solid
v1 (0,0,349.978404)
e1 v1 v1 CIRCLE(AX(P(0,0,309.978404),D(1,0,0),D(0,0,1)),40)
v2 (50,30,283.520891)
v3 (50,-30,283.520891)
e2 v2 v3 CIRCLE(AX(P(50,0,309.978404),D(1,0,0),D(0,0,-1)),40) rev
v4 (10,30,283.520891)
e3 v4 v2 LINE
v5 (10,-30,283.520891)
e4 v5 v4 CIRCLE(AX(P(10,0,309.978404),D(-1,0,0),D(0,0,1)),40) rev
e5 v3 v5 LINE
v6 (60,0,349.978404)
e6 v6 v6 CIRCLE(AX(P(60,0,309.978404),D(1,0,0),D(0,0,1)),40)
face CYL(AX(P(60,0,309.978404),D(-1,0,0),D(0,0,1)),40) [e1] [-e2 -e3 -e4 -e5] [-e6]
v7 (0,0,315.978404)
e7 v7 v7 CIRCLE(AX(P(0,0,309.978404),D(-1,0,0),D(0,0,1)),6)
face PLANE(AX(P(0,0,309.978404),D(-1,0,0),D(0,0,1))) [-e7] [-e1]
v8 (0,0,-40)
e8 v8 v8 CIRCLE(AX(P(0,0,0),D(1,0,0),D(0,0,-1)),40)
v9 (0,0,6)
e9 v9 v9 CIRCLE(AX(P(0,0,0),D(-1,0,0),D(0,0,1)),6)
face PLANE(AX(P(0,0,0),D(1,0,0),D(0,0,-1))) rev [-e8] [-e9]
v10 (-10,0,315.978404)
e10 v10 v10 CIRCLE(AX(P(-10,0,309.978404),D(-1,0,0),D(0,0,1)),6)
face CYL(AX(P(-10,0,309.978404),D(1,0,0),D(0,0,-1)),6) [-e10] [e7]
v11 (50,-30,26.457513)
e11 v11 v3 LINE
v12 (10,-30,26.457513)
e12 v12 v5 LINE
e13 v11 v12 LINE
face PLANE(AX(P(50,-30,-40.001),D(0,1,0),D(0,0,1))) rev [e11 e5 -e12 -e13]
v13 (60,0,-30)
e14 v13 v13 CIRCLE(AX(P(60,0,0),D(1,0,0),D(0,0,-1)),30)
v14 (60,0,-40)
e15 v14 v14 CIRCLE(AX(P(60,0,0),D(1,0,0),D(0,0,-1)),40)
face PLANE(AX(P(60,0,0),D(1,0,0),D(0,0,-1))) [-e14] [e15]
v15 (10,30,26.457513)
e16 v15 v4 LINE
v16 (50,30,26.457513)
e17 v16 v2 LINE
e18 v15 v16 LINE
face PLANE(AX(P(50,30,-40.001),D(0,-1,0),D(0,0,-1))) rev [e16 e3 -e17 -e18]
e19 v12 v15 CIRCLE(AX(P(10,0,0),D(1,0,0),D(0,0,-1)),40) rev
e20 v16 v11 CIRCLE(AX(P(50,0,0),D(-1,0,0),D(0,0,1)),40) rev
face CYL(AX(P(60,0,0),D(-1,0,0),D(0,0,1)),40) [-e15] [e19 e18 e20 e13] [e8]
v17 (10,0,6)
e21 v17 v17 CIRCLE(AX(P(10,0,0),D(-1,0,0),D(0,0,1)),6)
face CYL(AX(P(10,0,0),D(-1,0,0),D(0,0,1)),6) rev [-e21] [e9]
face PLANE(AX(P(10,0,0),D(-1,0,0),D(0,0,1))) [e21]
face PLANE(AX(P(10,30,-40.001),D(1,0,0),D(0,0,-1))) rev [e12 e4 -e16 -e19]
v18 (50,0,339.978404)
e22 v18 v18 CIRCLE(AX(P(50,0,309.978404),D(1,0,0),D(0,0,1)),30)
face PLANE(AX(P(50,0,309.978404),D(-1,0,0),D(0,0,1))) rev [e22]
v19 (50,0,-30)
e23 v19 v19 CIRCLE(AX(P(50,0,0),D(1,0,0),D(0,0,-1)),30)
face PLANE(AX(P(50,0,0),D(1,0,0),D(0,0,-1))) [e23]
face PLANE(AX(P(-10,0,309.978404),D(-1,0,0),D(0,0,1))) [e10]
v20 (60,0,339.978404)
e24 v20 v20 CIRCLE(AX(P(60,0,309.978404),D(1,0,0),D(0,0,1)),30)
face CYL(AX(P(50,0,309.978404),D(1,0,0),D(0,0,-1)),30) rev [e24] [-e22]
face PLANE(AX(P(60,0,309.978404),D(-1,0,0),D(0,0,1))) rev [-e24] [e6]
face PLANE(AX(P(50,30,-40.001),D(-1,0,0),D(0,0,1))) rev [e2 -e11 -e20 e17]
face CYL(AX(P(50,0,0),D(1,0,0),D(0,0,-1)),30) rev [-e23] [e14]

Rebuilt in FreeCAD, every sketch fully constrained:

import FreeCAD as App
import Part
import Sketcher
from FreeCAD import Vector


def add_polygon(sketch, points):
    """Adds a closed chain of lines whose ends are joined by coincident constraints."""
    first, n = sketch.GeometryCount, len(points)
    for a, b in zip(points, points[1:] + points[:1]):
        sketch.addGeometry(Part.LineSegment(App.Vector(*a, 0), App.Vector(*b, 0)), False)
    for i in range(n):
        sketch.addConstraint(Sketcher.Constraint("Coincident", first + i, 2, first + (i + 1) % n, 1))

doc = App.newDocument("Part")
body = doc.addObject("PartDesign::Body", "Body")

sketch1 = body.newObject("Sketcher::SketchObject", "Sketch")
sketch1.AttachmentSupport = (doc.getObject("YZ_Plane"), [""])
sketch1.MapMode = "FlatFace"
sketch1.addGeometry(Part.Circle(Vector(0, 0, 0), Vector(0, 0, 1), 40), False)
sketch1.addConstraint([
    Sketcher.Constraint("Coincident", 0, 3, -1, 1),
    Sketcher.Constraint("Diameter", 0, 80.0),
])
pad1 = body.newObject("PartDesign::Pad", "Pad")
pad1.Profile = sketch1
pad1.Length = 60
body2 = doc.addObject("PartDesign::Body", "Body001")

sketch2 = body2.newObject("Sketcher::SketchObject", "Sketch001")
sketch2.AttachmentSupport = (doc.getObject("YZ_Plane001"), [""])
sketch2.MapMode = "FlatFace"
sketch2.addGeometry(Part.Circle(Vector(0, 310, 0), Vector(0, 0, 1), 40), False)
sketch2.addConstraint([
    Sketcher.Constraint("PointOnObject", 0, 3, -2),
    Sketcher.Constraint("Diameter", 0, 80.0),
    Sketcher.Constraint("DistanceY", -1, 1, 0, 3, 309.978404),
])
pad2 = body2.newObject("PartDesign::Pad", "Pad001")
pad2.Profile = sketch2
pad2.Length = 60
body.AllowCompound = True
doc.recompute()

boolean = body.newObject("PartDesign::Boolean", "Boolean")
boolean.Type = "Fuse"
boolean.addObjects([body2])

sketch3 = body.newObject("Sketcher::SketchObject", "Sketch002")
sketch3.AttachmentSupport = (doc.getObject("XY_Plane"), [""])
sketch3.MapMode = "FlatFace"
sketch3.AttachmentOffset = App.Placement(Vector(0, 0, 283.520891), App.Rotation())
add_polygon(sketch3, [(50, 30), (50, -30), (10, -30), (10, 30)])
sketch3.addConstraint([
    Sketcher.Constraint("Vertical", 0),
    Sketcher.Constraint("Horizontal", 1),
    Sketcher.Constraint("Vertical", 2),
    Sketcher.Constraint("Horizontal", 3),
    Sketcher.Constraint("DistanceX", 1, 2, 1, 1, 40.0),
    Sketcher.Constraint("DistanceY", 0, 2, 0, 1, 60.0),
    Sketcher.Constraint("DistanceX", -1, 1, 0, 2, 50.0),
    Sketcher.Constraint("DistanceY", 0, 2, -1, 1, 30.0),
])
pad3 = body.newObject("PartDesign::Pad", "Pad002")
pad3.Profile = sketch3
pad3.Length = 257.063378
pad3.Reversed = True

sketch4 = body.newObject("Sketcher::SketchObject", "Sketch003")
sketch4.AttachmentSupport = (doc.getObject("YZ_Plane"), [""])
sketch4.MapMode = "FlatFace"
sketch4.addGeometry(Part.Circle(Vector(0, 0, 0), Vector(0, 0, 1), 6), False)
sketch4.addConstraint([
    Sketcher.Constraint("Coincident", 0, 3, -1, 1),
    Sketcher.Constraint("Diameter", 0, 12.0),
])
pocket1 = body.newObject("PartDesign::Pocket", "Pocket")
pocket1.Profile = sketch4
pocket1.Length = 10
pocket1.Reversed = True

sketch5 = body.newObject("Sketcher::SketchObject", "Sketch004")
sketch5.AttachmentSupport = (doc.getObject("YZ_Plane"), [""])
sketch5.MapMode = "FlatFace"
sketch5.addGeometry(Part.Circle(Vector(0, 310, 0), Vector(0, 0, 1), 6), False)
sketch5.addConstraint([
    Sketcher.Constraint("PointOnObject", 0, 3, -2),
    Sketcher.Constraint("Diameter", 0, 12.0),
    Sketcher.Constraint("DistanceY", -1, 1, 0, 3, 309.978404),
])
pad4 = body.newObject("PartDesign::Pad", "Pad003")
pad4.Profile = sketch5
pad4.Length = 10
pad4.Reversed = True

sketch6 = body.newObject("Sketcher::SketchObject", "Sketch005")
sketch6.AttachmentSupport = (doc.getObject("YZ_Plane"), [""])
sketch6.MapMode = "FlatFace"
sketch6.AttachmentOffset = App.Placement(Vector(0, 0, 60), App.Rotation())
sketch6.addGeometry([
    Part.Circle(Vector(0, 0, 0), Vector(0, 0, 1), 30),
    Part.Circle(Vector(0, 310, 0), Vector(0, 0, 1), 30),
], False)
sketch6.addConstraint([
    Sketcher.Constraint("Coincident", 0, 3, -1, 1),
    Sketcher.Constraint("Equal", 0, 1),
    Sketcher.Constraint("PointOnObject", 1, 3, -2),
    Sketcher.Constraint("Diameter", 0, 60.0),
    Sketcher.Constraint("DistanceY", -1, 1, 1, 3, 309.978404),
])
pocket2 = body.newObject("PartDesign::Pocket", "Pocket001")
pocket2.Profile = sketch6
pocket2.Length = 10

doc.recompute()
